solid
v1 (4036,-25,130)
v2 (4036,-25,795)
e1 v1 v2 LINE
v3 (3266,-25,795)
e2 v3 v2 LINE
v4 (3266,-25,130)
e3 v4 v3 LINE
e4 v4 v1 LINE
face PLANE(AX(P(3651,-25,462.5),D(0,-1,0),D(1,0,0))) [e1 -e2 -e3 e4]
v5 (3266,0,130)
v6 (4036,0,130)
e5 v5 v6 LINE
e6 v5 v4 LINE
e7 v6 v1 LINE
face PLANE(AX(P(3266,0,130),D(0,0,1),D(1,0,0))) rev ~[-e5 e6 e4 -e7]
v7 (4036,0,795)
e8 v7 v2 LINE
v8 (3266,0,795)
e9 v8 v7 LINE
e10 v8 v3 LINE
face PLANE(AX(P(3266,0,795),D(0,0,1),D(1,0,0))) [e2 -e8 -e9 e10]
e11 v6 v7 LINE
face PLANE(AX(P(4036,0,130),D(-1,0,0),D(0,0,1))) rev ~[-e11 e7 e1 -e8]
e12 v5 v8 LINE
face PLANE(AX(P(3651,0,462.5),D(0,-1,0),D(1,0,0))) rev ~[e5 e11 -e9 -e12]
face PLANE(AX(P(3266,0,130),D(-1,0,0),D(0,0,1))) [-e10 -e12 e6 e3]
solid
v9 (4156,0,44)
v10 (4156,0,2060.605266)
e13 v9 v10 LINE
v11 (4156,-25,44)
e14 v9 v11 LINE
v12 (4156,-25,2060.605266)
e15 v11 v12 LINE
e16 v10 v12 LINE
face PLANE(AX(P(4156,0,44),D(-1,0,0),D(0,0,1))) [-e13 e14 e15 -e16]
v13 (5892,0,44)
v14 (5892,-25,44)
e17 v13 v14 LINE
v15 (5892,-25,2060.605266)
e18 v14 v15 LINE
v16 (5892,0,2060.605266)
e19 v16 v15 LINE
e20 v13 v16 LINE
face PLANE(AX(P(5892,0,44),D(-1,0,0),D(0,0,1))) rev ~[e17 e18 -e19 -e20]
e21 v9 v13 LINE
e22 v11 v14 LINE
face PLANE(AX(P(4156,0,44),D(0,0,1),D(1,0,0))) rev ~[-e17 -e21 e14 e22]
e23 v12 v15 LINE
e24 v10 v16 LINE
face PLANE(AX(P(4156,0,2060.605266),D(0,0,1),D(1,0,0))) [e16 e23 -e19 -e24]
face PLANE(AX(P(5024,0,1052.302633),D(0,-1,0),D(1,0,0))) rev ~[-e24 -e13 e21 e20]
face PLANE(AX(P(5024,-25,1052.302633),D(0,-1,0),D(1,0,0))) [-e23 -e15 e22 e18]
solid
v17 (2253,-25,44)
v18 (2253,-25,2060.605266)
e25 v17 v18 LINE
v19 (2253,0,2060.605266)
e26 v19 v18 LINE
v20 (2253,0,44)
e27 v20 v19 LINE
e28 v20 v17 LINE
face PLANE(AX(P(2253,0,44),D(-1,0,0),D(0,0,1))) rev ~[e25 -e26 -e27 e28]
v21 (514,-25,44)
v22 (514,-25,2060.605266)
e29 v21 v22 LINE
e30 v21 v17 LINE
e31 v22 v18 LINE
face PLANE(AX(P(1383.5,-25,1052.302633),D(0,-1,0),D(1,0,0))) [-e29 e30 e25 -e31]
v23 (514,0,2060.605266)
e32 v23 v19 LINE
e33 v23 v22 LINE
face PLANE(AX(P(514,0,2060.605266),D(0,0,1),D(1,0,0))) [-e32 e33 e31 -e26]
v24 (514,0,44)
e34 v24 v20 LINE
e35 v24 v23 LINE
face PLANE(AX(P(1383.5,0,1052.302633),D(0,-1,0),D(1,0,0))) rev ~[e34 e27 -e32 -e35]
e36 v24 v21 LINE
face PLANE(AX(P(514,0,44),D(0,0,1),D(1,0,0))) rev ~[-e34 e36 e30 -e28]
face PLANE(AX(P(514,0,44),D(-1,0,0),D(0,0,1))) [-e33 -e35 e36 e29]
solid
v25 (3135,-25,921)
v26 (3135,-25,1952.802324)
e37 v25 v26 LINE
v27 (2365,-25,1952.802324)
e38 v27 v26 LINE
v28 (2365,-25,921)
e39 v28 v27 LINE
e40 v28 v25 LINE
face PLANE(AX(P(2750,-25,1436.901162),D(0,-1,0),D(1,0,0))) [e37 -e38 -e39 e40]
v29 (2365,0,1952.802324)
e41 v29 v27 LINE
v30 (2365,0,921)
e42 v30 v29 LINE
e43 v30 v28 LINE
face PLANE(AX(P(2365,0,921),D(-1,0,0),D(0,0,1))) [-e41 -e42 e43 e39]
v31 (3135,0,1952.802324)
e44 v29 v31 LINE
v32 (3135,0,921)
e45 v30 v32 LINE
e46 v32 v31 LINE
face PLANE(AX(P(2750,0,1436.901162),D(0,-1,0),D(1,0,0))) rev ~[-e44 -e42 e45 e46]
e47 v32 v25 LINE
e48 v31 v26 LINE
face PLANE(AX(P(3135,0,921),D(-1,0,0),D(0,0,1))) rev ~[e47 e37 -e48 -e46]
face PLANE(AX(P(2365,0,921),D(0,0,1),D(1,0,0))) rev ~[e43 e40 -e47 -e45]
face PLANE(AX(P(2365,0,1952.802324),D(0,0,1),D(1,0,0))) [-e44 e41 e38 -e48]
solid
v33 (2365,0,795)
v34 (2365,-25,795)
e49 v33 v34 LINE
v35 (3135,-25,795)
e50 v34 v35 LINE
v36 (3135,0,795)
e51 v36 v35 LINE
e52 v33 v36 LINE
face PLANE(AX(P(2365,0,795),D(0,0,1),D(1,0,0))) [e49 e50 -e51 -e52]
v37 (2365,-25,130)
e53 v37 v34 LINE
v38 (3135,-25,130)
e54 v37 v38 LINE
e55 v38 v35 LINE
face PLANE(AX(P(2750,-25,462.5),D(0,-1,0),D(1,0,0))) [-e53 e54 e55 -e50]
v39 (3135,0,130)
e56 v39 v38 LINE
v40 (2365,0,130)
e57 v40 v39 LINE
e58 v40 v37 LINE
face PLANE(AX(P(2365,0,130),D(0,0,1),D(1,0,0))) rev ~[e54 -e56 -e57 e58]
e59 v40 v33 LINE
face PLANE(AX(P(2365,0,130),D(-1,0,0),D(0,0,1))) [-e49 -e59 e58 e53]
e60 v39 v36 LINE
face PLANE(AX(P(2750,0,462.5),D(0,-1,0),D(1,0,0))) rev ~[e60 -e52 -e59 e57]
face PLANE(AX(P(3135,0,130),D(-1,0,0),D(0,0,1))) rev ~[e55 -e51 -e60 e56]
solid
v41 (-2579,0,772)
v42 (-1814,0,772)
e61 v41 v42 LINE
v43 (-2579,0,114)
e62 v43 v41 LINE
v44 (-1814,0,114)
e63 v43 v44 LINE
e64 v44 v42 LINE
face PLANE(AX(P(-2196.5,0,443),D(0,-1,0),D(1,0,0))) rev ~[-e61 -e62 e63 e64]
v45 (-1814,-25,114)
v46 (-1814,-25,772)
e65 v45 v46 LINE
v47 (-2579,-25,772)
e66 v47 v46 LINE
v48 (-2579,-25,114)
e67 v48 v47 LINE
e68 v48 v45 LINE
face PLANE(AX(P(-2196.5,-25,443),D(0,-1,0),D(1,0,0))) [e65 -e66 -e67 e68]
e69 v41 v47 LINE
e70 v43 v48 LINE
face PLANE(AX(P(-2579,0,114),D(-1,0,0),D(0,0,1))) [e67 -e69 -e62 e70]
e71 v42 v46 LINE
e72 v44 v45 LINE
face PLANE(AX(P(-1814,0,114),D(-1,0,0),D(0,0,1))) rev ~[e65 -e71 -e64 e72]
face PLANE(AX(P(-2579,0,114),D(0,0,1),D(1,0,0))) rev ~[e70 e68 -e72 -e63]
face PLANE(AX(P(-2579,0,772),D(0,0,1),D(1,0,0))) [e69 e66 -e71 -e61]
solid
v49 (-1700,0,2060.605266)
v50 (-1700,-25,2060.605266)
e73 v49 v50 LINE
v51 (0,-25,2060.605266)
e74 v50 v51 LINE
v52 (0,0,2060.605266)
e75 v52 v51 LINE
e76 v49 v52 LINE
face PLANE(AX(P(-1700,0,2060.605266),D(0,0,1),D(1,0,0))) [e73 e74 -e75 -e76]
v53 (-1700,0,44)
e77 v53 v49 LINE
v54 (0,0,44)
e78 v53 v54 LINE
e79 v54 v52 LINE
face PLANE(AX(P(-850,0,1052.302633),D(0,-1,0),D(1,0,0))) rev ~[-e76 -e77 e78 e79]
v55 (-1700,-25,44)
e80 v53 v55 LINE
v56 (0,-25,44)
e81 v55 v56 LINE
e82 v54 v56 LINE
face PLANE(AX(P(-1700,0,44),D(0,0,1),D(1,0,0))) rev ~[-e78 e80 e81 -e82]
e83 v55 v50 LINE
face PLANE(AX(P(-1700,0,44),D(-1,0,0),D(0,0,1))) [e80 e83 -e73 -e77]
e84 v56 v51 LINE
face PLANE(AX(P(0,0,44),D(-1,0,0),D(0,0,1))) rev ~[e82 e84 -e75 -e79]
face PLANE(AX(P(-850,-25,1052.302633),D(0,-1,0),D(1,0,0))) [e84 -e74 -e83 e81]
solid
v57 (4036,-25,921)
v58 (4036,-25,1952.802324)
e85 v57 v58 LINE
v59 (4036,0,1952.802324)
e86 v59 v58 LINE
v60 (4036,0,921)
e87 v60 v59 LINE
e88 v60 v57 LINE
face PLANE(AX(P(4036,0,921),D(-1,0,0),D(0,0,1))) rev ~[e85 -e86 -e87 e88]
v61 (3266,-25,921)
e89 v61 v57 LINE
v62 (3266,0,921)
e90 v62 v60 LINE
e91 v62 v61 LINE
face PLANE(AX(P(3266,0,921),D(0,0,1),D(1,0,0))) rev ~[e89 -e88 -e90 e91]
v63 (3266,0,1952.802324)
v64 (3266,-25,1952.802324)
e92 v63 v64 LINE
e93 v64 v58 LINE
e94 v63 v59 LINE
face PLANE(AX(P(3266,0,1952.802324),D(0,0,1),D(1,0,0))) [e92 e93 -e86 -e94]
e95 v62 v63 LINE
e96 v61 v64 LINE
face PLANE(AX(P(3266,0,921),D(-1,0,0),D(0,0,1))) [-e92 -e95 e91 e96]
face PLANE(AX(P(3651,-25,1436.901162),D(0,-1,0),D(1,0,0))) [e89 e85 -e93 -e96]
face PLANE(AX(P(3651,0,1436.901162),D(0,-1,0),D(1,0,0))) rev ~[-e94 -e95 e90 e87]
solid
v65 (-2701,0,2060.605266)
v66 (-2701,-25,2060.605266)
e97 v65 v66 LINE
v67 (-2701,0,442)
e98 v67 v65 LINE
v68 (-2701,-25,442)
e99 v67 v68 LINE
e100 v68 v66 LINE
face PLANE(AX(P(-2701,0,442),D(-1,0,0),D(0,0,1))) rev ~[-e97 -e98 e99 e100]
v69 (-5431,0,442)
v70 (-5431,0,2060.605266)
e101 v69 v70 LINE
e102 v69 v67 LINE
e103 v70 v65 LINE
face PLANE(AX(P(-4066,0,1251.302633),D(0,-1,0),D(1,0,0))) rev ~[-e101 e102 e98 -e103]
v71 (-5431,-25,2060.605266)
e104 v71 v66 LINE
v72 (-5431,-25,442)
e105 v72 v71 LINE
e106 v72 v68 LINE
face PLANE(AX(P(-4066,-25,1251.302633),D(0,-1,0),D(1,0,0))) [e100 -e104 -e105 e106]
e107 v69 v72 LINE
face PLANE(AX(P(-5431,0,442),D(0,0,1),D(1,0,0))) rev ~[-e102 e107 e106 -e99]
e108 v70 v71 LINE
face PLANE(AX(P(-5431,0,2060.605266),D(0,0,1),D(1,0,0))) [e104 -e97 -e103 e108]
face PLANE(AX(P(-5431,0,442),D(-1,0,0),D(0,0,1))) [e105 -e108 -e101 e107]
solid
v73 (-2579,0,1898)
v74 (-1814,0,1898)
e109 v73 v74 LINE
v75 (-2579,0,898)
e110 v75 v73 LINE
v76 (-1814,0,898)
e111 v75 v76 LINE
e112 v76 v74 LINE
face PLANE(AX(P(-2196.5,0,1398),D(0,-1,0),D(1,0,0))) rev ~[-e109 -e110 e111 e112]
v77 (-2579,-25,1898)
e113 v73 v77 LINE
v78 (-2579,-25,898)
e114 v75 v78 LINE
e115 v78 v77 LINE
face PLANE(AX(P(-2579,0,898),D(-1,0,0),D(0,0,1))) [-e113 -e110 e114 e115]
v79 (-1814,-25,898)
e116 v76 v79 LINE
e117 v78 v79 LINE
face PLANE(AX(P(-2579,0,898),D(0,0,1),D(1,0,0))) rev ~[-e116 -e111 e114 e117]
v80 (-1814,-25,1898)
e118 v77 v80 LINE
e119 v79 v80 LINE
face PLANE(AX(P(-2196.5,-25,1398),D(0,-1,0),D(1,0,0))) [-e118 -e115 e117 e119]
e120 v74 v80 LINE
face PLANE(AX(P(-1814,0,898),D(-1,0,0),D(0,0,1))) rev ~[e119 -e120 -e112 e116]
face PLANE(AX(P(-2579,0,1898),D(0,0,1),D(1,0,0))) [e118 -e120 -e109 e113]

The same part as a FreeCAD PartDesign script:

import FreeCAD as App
import Part
import Sketcher
Q = App.Units.Quantity

doc = App.newDocument("Part")
params = doc.addObject("Spreadsheet::Sheet", "Params")
for row, (alias, value) in enumerate([
    ("sketch1_width", "1739 mm"),
    ("sketch1_width2", "770 mm"),
    ("sketch1_width3", "1736 mm"),
    ("sketch1_width4", "1700 mm"),
    ("sketch1_width5", "765 mm"),
    ("pad1_length", "25 mm"),
], start=1):
    params.set(f"A{row}", alias)
    params.set(f"B{row}", "=" + value)
    params.setAlias(f"B{row}", alias)

body = doc.addObject("PartDesign::Body", "Body")
body.AllowCompound = True

sketch1 = body.newObject("Sketcher::SketchObject", "Sketch")
sketch1.AttachmentSupport = (doc.getObject("XZ_Plane"), [""])
sketch1.MapMode = "FlatFace"
sketch1.addGeometry([
    Part.LineSegment(App.Vector(514, 2061, 0), App.Vector(514, 44, 0)),
    Part.LineSegment(App.Vector(514, 44, 0), App.Vector(2253, 44, 0)),
    Part.LineSegment(App.Vector(2253, 44, 0), App.Vector(2253, 2061, 0)),
    Part.LineSegment(App.Vector(2253, 2061, 0), App.Vector(514, 2061, 0)),
    Part.LineSegment(App.Vector(2365, 795, 0), App.Vector(2365, 130, 0)),
    Part.LineSegment(App.Vector(2365, 130, 0), App.Vector(3135, 130, 0)),
    Part.LineSegment(App.Vector(3135, 130, 0), App.Vector(3135, 795, 0)),
    Part.LineSegment(App.Vector(3135, 795, 0), App.Vector(2365, 795, 0)),
    Part.LineSegment(App.Vector(3266, 795, 0), App.Vector(3266, 130, 0)),
    Part.LineSegment(App.Vector(3266, 130, 0), App.Vector(4036, 130, 0)),
    Part.LineSegment(App.Vector(4036, 130, 0), App.Vector(4036, 795, 0)),
    Part.LineSegment(App.Vector(4036, 795, 0), App.Vector(3266, 795, 0)),
    Part.LineSegment(App.Vector(3266, 1953, 0), App.Vector(3266, 921, 0)),
    Part.LineSegment(App.Vector(3266, 921, 0), App.Vector(4036, 921, 0)),
    Part.LineSegment(App.Vector(4036, 921, 0), App.Vector(4036, 1953, 0)),
    Part.LineSegment(App.Vector(4036, 1953, 0), App.Vector(3266, 1953, 0)),
    Part.LineSegment(App.Vector(2365, 1953, 0), App.Vector(2365, 921, 0)),
    Part.LineSegment(App.Vector(2365, 921, 0), App.Vector(3135, 921, 0)),
    Part.LineSegment(App.Vector(3135, 921, 0), App.Vector(3135, 1953, 0)),
    Part.LineSegment(App.Vector(3135, 1953, 0), App.Vector(2365, 1953, 0)),
    Part.LineSegment(App.Vector(4156, 2061, 0), App.Vector(4156, 44, 0)),
    Part.LineSegment(App.Vector(4156, 44, 0), App.Vector(5892, 44, 0)),
    Part.LineSegment(App.Vector(5892, 44, 0), App.Vector(5892, 2061, 0)),
    Part.LineSegment(App.Vector(5892, 2061, 0), App.Vector(4156, 2061, 0)),
    Part.LineSegment(App.Vector(-1700, 2061, 0), App.Vector(-1700, 44, 0)),
    Part.LineSegment(App.Vector(-1700, 44, 0), App.Vector(0, 44, 0)),
    Part.LineSegment(App.Vector(0, 44, 0), App.Vector(0, 2061, 0)),
    Part.LineSegment(App.Vector(0, 2061, 0), App.Vector(-1700, 2061, 0)),
    Part.LineSegment(App.Vector(-2579, 1898, 0), App.Vector(-2579, 898, 0)),
    Part.LineSegment(App.Vector(-2579, 898, 0), App.Vector(-1814, 898, 0)),
    Part.LineSegment(App.Vector(-1814, 898, 0), App.Vector(-1814, 1898, 0)),
    Part.LineSegment(App.Vector(-1814, 1898, 0), App.Vector(-2579, 1898, 0)),
    Part.LineSegment(App.Vector(-2579, 772, 0), App.Vector(-2579, 114, 0)),
    Part.LineSegment(App.Vector(-2579, 114, 0), App.Vector(-1814, 114, 0)),
    Part.LineSegment(App.Vector(-1814, 114, 0), App.Vector(-1814, 772, 0)),
    Part.LineSegment(App.Vector(-1814, 772, 0), App.Vector(-2579, 772, 0)),
    Part.LineSegment(App.Vector(-5431, 2061, 0), App.Vector(-5431, 442, 0)),
    Part.LineSegment(App.Vector(-5431, 442, 0), App.Vector(-2701, 442, 0)),
    Part.LineSegment(App.Vector(-2701, 442, 0), App.Vector(-2701, 2061, 0)),
    Part.LineSegment(App.Vector(-2701, 2061, 0), App.Vector(-5431, 2061, 0)),
], False)
sketch1.addConstraint([
    Sketcher.Constraint("Coincident", 0, 2, 1, 1),
    Sketcher.Constraint("Coincident", 1, 2, 2, 1),
    Sketcher.Constraint("Coincident", 2, 2, 3, 1),
    Sketcher.Constraint("Coincident", 3, 2, 0, 1),
    Sketcher.Constraint("Coincident", 4, 2, 5, 1),
    Sketcher.Constraint("Coincident", 5, 2, 6, 1),
    Sketcher.Constraint("Coincident", 6, 2, 7, 1),
    Sketcher.Constraint("Coincident", 7, 2, 4, 1),
    Sketcher.Constraint("Coincident", 8, 2, 9, 1),
    Sketcher.Constraint("Coincident", 9, 2, 10, 1),
    Sketcher.Constraint("Coincident", 10, 2, 11, 1),
    Sketcher.Constraint("Coincident", 11, 2, 8, 1),
    Sketcher.Constraint("Coincident", 12, 2, 13, 1),
    Sketcher.Constraint("Coincident", 13, 2, 14, 1),
    Sketcher.Constraint("Coincident", 14, 2, 15, 1),
    Sketcher.Constraint("Coincident", 15, 2, 12, 1),
    Sketcher.Constraint("Coincident", 16, 2, 17, 1),
    Sketcher.Constraint("Coincident", 17, 2, 18, 1),
    Sketcher.Constraint("Coincident", 18, 2, 19, 1),
    Sketcher.Constraint("Coincident", 19, 2, 16, 1),
    Sketcher.Constraint("Coincident", 20, 2, 21, 1),
    Sketcher.Constraint("Coincident", 21, 2, 22, 1),
    Sketcher.Constraint("Coincident", 22, 2, 23, 1),
    Sketcher.Constraint("Coincident", 23, 2, 20, 1),
    Sketcher.Constraint("Coincident", 24, 2, 25, 1),
    Sketcher.Constraint("Coincident", 25, 2, 26, 1),
    Sketcher.Constraint("Coincident", 26, 2, 27, 1),
    Sketcher.Constraint("Coincident", 27, 2, 24, 1),
    Sketcher.Constraint("Coincident", 28, 2, 29, 1),
    Sketcher.Constraint("Coincident", 29, 2, 30, 1),
    Sketcher.Constraint("Coincident", 30, 2, 31, 1),
    Sketcher.Constraint("Coincident", 31, 2, 28, 1),
    Sketcher.Constraint("Coincident", 32, 2, 33, 1),
    Sketcher.Constraint("Coincident", 33, 2, 34, 1),
    Sketcher.Constraint("Coincident", 34, 2, 35, 1),
    Sketcher.Constraint("Coincident", 35, 2, 32, 1),
    Sketcher.Constraint("Coincident", 36, 2, 37, 1),
    Sketcher.Constraint("Coincident", 37, 2, 38, 1),
    Sketcher.Constraint("Coincident", 38, 2, 39, 1),
    Sketcher.Constraint("Coincident", 39, 2, 36, 1),
    Sketcher.Constraint("Vertical", 0),
    Sketcher.Constraint("Horizontal", 1),
    Sketcher.Constraint("Vertical", 2),
    Sketcher.Constraint("Horizontal", 3),
    Sketcher.Constraint("Vertical", 4),
    Sketcher.Constraint("Horizontal", 5),
    Sketcher.Constraint("Vertical", 6),
    Sketcher.Constraint("Horizontal", 7),
    Sketcher.Constraint("Vertical", 8),
    Sketcher.Constraint("Horizontal", 9),
    Sketcher.Constraint("Vertical", 10),
    Sketcher.Constraint("Horizontal", 11),
    Sketcher.Constraint("Vertical", 12),
    Sketcher.Constraint("Horizontal", 13),
    Sketcher.Constraint("Vertical", 14),
    Sketcher.Constraint("Horizontal", 15),
    Sketcher.Constraint("Vertical", 16),
    Sketcher.Constraint("Horizontal", 17),
    Sketcher.Constraint("Vertical", 18),
    Sketcher.Constraint("Horizontal", 19),
    Sketcher.Constraint("Vertical", 20),
    Sketcher.Constraint("Horizontal", 21),
    Sketcher.Constraint("Vertical", 22),
    Sketcher.Constraint("Horizontal", 23),
    Sketcher.Constraint("Vertical", 24),
    Sketcher.Constraint("Horizontal", 25),
    Sketcher.Constraint("Vertical", 26),
    Sketcher.Constraint("Horizontal", 27),
    Sketcher.Constraint("Vertical", 28),
    Sketcher.Constraint("Horizontal", 29),
    Sketcher.Constraint("Vertical", 30),
    Sketcher.Constraint("Horizontal", 31),
    Sketcher.Constraint("Vertical", 32),
    Sketcher.Constraint("Horizontal", 33),
    Sketcher.Constraint("Vertical", 34),
    Sketcher.Constraint("Horizontal", 35),
    Sketcher.Constraint("Vertical", 36),
    Sketcher.Constraint("Horizontal", 37),
    Sketcher.Constraint("Vertical", 38),
    Sketcher.Constraint("Horizontal", 39),
    Sketcher.Constraint("PointOnObject", 25, 2, -2),
    Sketcher.Constraint("Horizontal", 5, 2, 8, 2),
    Sketcher.Constraint("Horizontal", 7, 2, 10, 2),
    Sketcher.Constraint("Horizontal", 13, 2, 16, 2),
    Sketcher.Constraint("Horizontal", 15, 2, 18, 2),
    Sketcher.Constraint("Horizontal", 1, 2, 20, 2),
    Sketcher.Constraint("Horizontal", 3, 2, 22, 2),
    Sketcher.Constraint("Horizontal", 21, 2, 24, 2),
    Sketcher.Constraint("Horizontal", 23, 2, 26, 2),
    Sketcher.Constraint("Horizontal", 27, 2, 38, 2),
    Sketcher.Constraint("Vertical", 11, 2, 12, 2),
    Sketcher.Constraint("Vertical", 10, 2, 13, 2),
    Sketcher.Constraint("Vertical", 7, 2, 16, 2),
    Sketcher.Constraint("Vertical", 6, 2, 17, 2),
    Sketcher.Constraint("Vertical", 31, 2, 32, 2),
    Sketcher.Constraint("Vertical", 30, 2, 33, 2),
    Sketcher.Constraint("Equal", 7, 9),
    Sketcher.Constraint("DistanceX", 1, 1, 1, 2, Q("1739 mm")),
    Sketcher.Constraint("DistanceX", 5, 1, 5, 2, Q("770 mm")),
    Sketcher.Constraint("DistanceX", 21, 1, 21, 2, Q("1736 mm")),
    Sketcher.Constraint("DistanceX", 25, 1, 25, 2, Q("1700 mm")),
    Sketcher.Constraint("DistanceX", 29, 1, 29, 2, Q("765 mm")),
    Sketcher.Constraint("DistanceX", 37, 1, 37, 2, Q("2730 mm")),
    Sketcher.Constraint("DistanceY", 4, 2, 4, 1, Q("665 mm")),
    Sketcher.Constraint("DistanceY", 28, 2, 28, 1, Q("1000 mm")),
    Sketcher.Constraint("DistanceY", 32, 2, 32, 1, Q("658 mm")),
    Sketcher.Constraint("DistanceX", -1, 1, 0, 2, Q("514 mm")),
    Sketcher.Constraint("DistanceY", -1, 1, 0, 2, Q("44 mm")),
    Sketcher.Constraint("DistanceX", -1, 1, 4, 2, Q("2365 mm")),
    Sketcher.Constraint("DistanceY", -1, 1, 4, 2, Q("130 mm")),
    Sketcher.Constraint("DistanceX", -1, 1, 8, 2, Q("3266 mm")),
    Sketcher.Constraint("DistanceY", -1, 1, 12, 2, Q("921 mm")),
    Sketcher.Constraint("DistanceX", -1, 1, 20, 2, Q("4156 mm")),
    Sketcher.Constraint("DistanceX", 28, 2, -1, 1, Q("2579 mm")),
    Sketcher.Constraint("DistanceY", -1, 1, 28, 2, Q("898 mm")),
    Sketcher.Constraint("DistanceY", -1, 1, 32, 2, Q("114 mm")),
    Sketcher.Constraint("DistanceX", 36, 2, -1, 1, Q("5431 mm")),
    Sketcher.Constraint("DistanceY", -1, 1, 36, 2, Q("442 mm")),
    Sketcher.Constraint("DistanceY", 0, 2, 0, 1, Q("2016.605266 mm")),
    Sketcher.Constraint("DistanceY", 12, 2, 12, 1, Q("1031.802324 mm")),
])
sketch1.setExpression("Constraints[97]", "Params.sketch1_width")
sketch1.setExpression("Constraints[98]", "Params.sketch1_width2")
sketch1.setExpression("Constraints[99]", "Params.sketch1_width3")
sketch1.setExpression("Constraints[100]", "Params.sketch1_width4")
sketch1.setExpression("Constraints[101]", "Params.sketch1_width5")
pad1 = body.newObject("PartDesign::Pad", "Pad")
pad1.Profile = sketch1
pad1.setExpression("Length", "Params.pad1_length")

doc.recompute()
